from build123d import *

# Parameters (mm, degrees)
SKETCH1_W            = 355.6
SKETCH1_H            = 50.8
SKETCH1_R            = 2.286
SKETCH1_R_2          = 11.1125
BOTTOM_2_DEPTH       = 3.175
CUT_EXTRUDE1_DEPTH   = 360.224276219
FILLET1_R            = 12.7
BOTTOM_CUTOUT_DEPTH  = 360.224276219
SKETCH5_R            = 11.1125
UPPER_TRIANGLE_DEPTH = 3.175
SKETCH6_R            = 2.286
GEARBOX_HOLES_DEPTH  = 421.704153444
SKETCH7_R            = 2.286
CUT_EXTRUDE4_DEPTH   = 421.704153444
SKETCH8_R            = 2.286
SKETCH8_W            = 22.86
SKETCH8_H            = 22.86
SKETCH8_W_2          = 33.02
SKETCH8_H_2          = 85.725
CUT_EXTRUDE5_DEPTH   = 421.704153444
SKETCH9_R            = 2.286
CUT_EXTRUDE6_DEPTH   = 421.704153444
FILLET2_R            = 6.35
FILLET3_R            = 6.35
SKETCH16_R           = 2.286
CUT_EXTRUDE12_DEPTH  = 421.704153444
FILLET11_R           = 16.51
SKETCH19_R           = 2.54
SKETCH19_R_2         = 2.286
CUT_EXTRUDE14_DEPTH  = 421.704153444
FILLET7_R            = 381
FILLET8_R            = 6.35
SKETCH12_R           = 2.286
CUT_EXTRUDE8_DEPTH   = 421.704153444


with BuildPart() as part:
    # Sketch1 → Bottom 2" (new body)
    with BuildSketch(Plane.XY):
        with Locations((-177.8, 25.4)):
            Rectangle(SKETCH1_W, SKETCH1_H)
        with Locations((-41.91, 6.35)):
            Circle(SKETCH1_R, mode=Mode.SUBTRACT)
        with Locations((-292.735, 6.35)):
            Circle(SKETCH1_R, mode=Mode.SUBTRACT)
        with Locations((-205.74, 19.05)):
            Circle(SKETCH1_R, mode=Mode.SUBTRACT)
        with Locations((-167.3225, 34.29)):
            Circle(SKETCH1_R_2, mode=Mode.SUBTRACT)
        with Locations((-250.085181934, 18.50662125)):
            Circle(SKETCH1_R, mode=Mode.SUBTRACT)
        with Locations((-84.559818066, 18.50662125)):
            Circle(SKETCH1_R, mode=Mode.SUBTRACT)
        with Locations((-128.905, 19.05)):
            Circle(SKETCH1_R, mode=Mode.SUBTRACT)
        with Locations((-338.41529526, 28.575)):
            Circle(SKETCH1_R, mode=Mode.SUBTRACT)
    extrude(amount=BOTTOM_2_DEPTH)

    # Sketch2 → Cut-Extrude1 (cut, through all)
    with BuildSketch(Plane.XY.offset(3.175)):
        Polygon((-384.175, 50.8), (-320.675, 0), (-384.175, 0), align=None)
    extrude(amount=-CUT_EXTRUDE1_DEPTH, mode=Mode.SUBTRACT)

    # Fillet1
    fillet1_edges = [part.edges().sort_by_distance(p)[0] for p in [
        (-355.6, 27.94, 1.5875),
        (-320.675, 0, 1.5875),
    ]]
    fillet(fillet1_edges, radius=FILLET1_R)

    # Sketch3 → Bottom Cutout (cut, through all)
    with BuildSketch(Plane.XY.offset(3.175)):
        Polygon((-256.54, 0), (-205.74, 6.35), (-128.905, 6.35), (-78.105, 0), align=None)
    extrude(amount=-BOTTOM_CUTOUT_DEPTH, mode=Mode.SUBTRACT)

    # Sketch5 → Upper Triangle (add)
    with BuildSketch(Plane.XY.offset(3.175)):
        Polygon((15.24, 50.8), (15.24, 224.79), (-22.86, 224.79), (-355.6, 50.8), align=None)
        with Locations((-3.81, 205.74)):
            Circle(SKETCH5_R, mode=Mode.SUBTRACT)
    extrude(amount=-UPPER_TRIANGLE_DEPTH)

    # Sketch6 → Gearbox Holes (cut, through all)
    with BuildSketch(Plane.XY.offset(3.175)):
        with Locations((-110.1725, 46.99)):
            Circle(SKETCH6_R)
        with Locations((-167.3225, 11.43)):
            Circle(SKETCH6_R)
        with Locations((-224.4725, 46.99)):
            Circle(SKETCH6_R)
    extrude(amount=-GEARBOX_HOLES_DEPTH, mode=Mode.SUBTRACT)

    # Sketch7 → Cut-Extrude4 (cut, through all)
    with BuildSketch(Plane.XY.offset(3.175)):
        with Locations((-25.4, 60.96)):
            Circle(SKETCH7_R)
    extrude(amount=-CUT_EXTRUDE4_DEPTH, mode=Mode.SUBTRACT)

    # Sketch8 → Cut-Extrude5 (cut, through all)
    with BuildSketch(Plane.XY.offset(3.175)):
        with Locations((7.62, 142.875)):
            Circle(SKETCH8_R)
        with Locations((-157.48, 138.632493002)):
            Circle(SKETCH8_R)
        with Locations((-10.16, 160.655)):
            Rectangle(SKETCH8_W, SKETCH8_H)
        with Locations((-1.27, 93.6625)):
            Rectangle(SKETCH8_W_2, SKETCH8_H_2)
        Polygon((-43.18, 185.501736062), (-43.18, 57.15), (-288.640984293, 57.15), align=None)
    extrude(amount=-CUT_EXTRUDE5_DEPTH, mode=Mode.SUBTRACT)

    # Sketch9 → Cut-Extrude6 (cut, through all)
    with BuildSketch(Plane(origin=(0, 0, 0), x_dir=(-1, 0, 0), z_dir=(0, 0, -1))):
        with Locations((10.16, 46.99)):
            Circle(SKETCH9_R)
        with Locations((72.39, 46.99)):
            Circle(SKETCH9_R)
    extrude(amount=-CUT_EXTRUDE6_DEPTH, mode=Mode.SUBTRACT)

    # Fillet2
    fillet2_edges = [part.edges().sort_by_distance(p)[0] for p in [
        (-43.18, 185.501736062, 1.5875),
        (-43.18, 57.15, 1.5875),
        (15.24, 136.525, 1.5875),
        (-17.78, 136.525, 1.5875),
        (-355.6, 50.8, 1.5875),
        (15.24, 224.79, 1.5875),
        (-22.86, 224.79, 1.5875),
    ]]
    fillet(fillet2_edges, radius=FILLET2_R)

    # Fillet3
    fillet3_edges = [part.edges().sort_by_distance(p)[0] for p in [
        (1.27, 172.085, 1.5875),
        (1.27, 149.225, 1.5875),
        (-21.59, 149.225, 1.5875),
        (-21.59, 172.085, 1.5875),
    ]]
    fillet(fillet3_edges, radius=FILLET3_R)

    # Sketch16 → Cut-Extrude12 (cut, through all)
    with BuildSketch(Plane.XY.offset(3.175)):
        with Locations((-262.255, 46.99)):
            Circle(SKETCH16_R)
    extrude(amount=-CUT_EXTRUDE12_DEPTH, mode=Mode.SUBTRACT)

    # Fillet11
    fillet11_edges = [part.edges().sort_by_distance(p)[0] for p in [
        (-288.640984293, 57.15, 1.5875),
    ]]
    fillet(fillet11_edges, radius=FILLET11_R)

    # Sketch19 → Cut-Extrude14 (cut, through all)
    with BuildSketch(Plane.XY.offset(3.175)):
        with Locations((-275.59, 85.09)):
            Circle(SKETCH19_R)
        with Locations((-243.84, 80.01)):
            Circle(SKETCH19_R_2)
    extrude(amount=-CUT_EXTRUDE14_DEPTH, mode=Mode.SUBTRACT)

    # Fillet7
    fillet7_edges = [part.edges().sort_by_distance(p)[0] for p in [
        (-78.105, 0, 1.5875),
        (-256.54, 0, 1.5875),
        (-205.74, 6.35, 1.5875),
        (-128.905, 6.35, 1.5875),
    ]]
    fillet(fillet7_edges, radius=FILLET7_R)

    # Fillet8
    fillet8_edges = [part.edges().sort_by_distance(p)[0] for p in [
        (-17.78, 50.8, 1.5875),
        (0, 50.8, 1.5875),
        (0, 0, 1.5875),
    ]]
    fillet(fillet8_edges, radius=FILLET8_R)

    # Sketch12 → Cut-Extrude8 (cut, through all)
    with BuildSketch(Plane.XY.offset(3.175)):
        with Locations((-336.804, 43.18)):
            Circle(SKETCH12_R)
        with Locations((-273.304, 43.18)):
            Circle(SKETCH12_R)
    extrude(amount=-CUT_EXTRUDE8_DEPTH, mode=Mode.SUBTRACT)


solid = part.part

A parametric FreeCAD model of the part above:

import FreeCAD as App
import Part
import Sketcher
from FreeCAD import Vector
Q = App.Units.Quantity


def edges_at(feature, points):
    """Names of the edges that pass closest to the given points."""
    edges = feature.Shape.Edges
    near = lambda p: min(range(len(edges)), key=lambda i: edges[i].distToShape(Part.Vertex(*p))[0])
    return sorted({f"Edge{near(p) + 1}" for p in points})

doc = App.newDocument("Part")
body = doc.addObject("PartDesign::Body", "Body")

# Sketch on XY plane
sketch1 = body.newObject("Sketcher::SketchObject", "Sketch")
sketch1.AttachmentSupport = (doc.getObject("XY_Plane"), [""])
sketch1.MapMode = "FlatFace"
sketch1.addGeometry([
    Part.LineSegment(Vector(-355.6, 50.8, 0), Vector(-355.6, 0, 0)),  # 0
    Part.LineSegment(Vector(-355.6, 0, 0), Vector(0, 0, 0)),  # 1
    Part.LineSegment(Vector(0, 0, 0), Vector(0, 50.8, 0)),  # 2
    Part.LineSegment(Vector(0, 50.8, 0), Vector(-355.6, 50.8, 0)),  # 3
    Part.Circle(Vector(-292.7, 6.3, 0), Vector(0, 0, 1), 2.3),  # 4
    Part.Circle(Vector(-250.1, 18.5, 0), Vector(0, 0, 1), 2.3),  # 5
    Part.Circle(Vector(-205.7, 19.1, 0), Vector(0, 0, 1), 2.3),  # 6
    Part.Circle(Vector(-41.9, 6.3, 0), Vector(0, 0, 1), 2.3),  # 7
    Part.Circle(Vector(-128.9, 19.1, 0), Vector(0, 0, 1), 2.3),  # 8
    Part.Circle(Vector(-84.6, 18.5, 0), Vector(0, 0, 1), 2.3),  # 9
    Part.Circle(Vector(-338.4, 28.6, 0), Vector(0, 0, 1), 2.3),  # 10
    Part.Circle(Vector(-167.3, 34.3, 0), Vector(0, 0, 1), 11.1),  # 11
], False)
sketch1.addConstraint([
    Sketcher.Constraint("Coincident", 0, 2, 1, 1),
    Sketcher.Constraint("Coincident", 1, 2, 2, 1),
    Sketcher.Constraint("Coincident", 2, 2, 3, 1),
    Sketcher.Constraint("Coincident", 3, 2, 0, 1),
    Sketcher.Constraint("Vertical", 0),
    Sketcher.Constraint("Horizontal", 1),
    Sketcher.Constraint("Vertical", 2),
    Sketcher.Constraint("Horizontal", 3),
    Sketcher.Constraint("Coincident", 1, 2, -1, 1),
    Sketcher.Constraint("Equal", 4, 5),
    Sketcher.Constraint("Equal", 5, 6),
    Sketcher.Constraint("Equal", 6, 7),
    Sketcher.Constraint("Equal", 7, 8),
    Sketcher.Constraint("Equal", 8, 9),
    Sketcher.Constraint("Equal", 9, 10),
    Sketcher.Constraint("Horizontal", 4, 3, 7, 3),
    Sketcher.Constraint("Horizontal", 6, 3, 8, 3),
    Sketcher.Constraint("Horizontal", 5, 3, 9, 3),
    Sketcher.Constraint("Diameter", 4, Q("0.18 in")),
    Sketcher.Constraint("DistanceX", 1, 1, 1, 2, Q("14 in")),
    Sketcher.Constraint("DistanceY", 0, 2, 0, 1, Q("2 in")),
    Sketcher.Constraint("Diameter", 11, Q("0.875 in")),
    Sketcher.Constraint("DistanceX", 6, 3, -1, 1, Q("8.1 in")),
    Sketcher.Constraint("DistanceY", 4, 3, 6, 3, Q("0.5 in")),
    Sketcher.Constraint("DistanceY", 8, 3, 11, 3, Q("0.6 in")),
    Sketcher.Constraint("DistanceY", -1, 1, 4, 3, Q("0.25 in")),
    Sketcher.Constraint("DistanceX", 7, 3, -1, 1, Q("1.65 in")),
    Sketcher.Constraint("DistanceX", 4, 3, 8, 3, Q("6.45 in")),
    Sketcher.Constraint("DistanceX", 4, 3, -1, 1, Q("11.525 in")),
    Sketcher.Constraint("DistanceY", -1, 1, 10, 3, Q("1.125 in")),
    Sketcher.Constraint("DistanceX", 11, 3, 7, 3, Q("4.9375 in")),
    Sketcher.Constraint("DistanceX", 5, 3, -1, 1, 250.085182),
    Sketcher.Constraint("DistanceY", -1, 1, 5, 3, 18.506621),
    Sketcher.Constraint("DistanceX", 9, 3, -1, 1, 84.559818),
    Sketcher.Constraint("DistanceX", 10, 3, -1, 1, 338.415295),
])
pad1 = body.newObject("PartDesign::Pad", "Pad")
pad1.Profile = sketch1
pad1.Length = Q("0.125 in")

# Sketch on XY plane
sketch2 = body.newObject("Sketcher::SketchObject", "Sketch001")
sketch2.AttachmentSupport = (doc.getObject("XY_Plane"), [""])
sketch2.MapMode = "FlatFace"
sketch2.AttachmentOffset = App.Placement(Vector(0, 0, 0.125 * 25.4), App.Rotation())
sketch2.addGeometry([
    Part.LineSegment(Vector(-321, 0, 0), Vector(-384, 51, 0)),
    Part.LineSegment(Vector(-384, 51, 0), Vector(-384, 0, 0)),
    Part.LineSegment(Vector(-384, 0, 0), Vector(-321, 0, 0)),
], False)
sketch2.addConstraint([
    Sketcher.Constraint("Coincident", 0, 2, 1, 1),
    Sketcher.Constraint("Coincident", 1, 2, 2, 1),
    Sketcher.Constraint("Coincident", 2, 2, 0, 1),
    Sketcher.Constraint("Vertical", 1),
    Sketcher.Constraint("Horizontal", 2),
    Sketcher.Constraint("PointOnObject", 1, 2, -1),
    Sketcher.Constraint("DistanceY", 1, 2, 1, 1, Q("2 in")),
    Sketcher.Constraint("DistanceX", 2, 1, 2, 2, Q("2.5 in")),
    Sketcher.Constraint("DistanceX", 0, 2, -1, 1, Q("15.125 in")),
])
pocket1 = body.newObject("PartDesign::Pocket", "Pocket")
pocket1.Profile = sketch2
pocket1.Type = "ThroughAll"
doc.recompute()

fillet = body.newObject("PartDesign::Fillet", "Fillet")
fillet.Base = (pocket1, edges_at(pocket1, [(-355.6, 27.94, 1.587), (-320.675, 0, 1.587)]))
fillet.Radius = Q("0.5 in")

# Sketch on XY plane
sketch3 = body.newObject("Sketcher::SketchObject", "Sketch002")
sketch3.AttachmentSupport = (doc.getObject("XY_Plane"), [""])
sketch3.MapMode = "FlatFace"
sketch3.AttachmentOffset = App.Placement(Vector(0, 0, 0.125 * 25.4), App.Rotation())
sketch3.addGeometry([
    Part.LineSegment(Vector(-206, 6, 0), Vector(-257, 0, 0)),
    Part.LineSegment(Vector(-257, 0, 0), Vector(-78, 0, 0)),
    Part.LineSegment(Vector(-78, 0, 0), Vector(-129, 6, 0)),
    Part.LineSegment(Vector(-129, 6, 0), Vector(-206, 6, 0)),
], False)
sketch3.addConstraint([
    Sketcher.Constraint("Coincident", 0, 2, 1, 1),
    Sketcher.Constraint("Coincident", 1, 2, 2, 1),
    Sketcher.Constraint("Coincident", 2, 2, 3, 1),
    Sketcher.Constraint("Coincident", 3, 2, 0, 1),
    Sketcher.Constraint("Horizontal", 1),
    Sketcher.Constraint("Horizontal", 3),
    Sketcher.Constraint("PointOnObject", 0, 2, -1),
    Sketcher.Constraint("Equal", 0, 2),
    Sketcher.Constraint("DistanceX", 2, 2, 1, 2, Q("2 in")),
    Sketcher.Constraint("DistanceX", 0, 2, -1, 1, Q("10.1 in")),
    Sketcher.Constraint("DistanceX", 1, 1, 1, 2, Q("7.025 in")),
    Sketcher.Constraint("DistanceY", -1, 1, 2, 2, Q("0.25 in")),
])
pocket2 = body.newObject("PartDesign::Pocket", "Pocket001")
pocket2.Profile = sketch3
pocket2.Type = "ThroughAll"

# Sketch on XY plane
sketch4 = body.newObject("Sketcher::SketchObject", "Sketch003")
sketch4.AttachmentSupport = (doc.getObject("XY_Plane"), [""])
sketch4.MapMode = "FlatFace"
sketch4.AttachmentOffset = App.Placement(Vector(0, 0, 0.125 * 25.4), App.Rotation())
sketch4.addGeometry([
    Part.LineSegment(Vector(15, 51, 0), Vector(15, 225, 0)),  # 0
    Part.LineSegment(Vector(15, 225, 0), Vector(-23, 225, 0)),  # 1
    Part.LineSegment(Vector(-23, 225, 0), Vector(-356, 51, 0)),  # 2
    Part.LineSegment(Vector(-356, 51, 0), Vector(15, 51, 0)),  # 3
    Part.Circle(Vector(-4, 206, 0), Vector(0, 0, 1), 11),  # 4
], False)
sketch4.addConstraint([
    Sketcher.Constraint("Coincident", 0, 2, 1, 1),
    Sketcher.Constraint("Coincident", 1, 2, 2, 1),
    Sketcher.Constraint("Coincident", 2, 2, 3, 1),
    Sketcher.Constraint("Coincident", 3, 2, 0, 1),
    Sketcher.Constraint("Vertical", 0),
    Sketcher.Constraint("Horizontal", 1),
    Sketcher.Constraint("Horizontal", 3),
    Sketcher.Constraint("Diameter", 4, Q("0.875 in")),
    Sketcher.Constraint("DistanceX", 1, 2, 1, 1, Q("1.5 in")),
    Sketcher.Constraint("DistanceX", 3, 1, 3, 2, Q("14.6 in")),
    Sketcher.Constraint("DistanceX", 2, 2, -1, 1, Q("14 in")),
    Sketcher.Constraint("DistanceY", -1, 1, 2, 2, Q("2 in")),
    Sketcher.Constraint("DistanceY", 0, 1, 0, 2, Q("6.85 in")),
    Sketcher.Constraint("DistanceY", -1, 1, 4, 3, Q("8.1 in")),
    Sketcher.Constraint("DistanceX", 4, 3, -1, 1, Q("0.15 in")),
])
pad2 = body.newObject("PartDesign::Pad", "Pad001")
pad2.Profile = sketch4
pad2.Length = Q("0.125 in")
pad2.Reversed = True

# Sketch on XY plane
sketch5 = body.newObject("Sketcher::SketchObject", "Sketch004")
sketch5.AttachmentSupport = (doc.getObject("XY_Plane"), [""])
sketch5.MapMode = "FlatFace"
sketch5.AttachmentOffset = App.Placement(Vector(0, 0, 0.125 * 25.4), App.Rotation())
sketch5.addGeometry([
    Part.Circle(Vector(-110.2, 47, 0), Vector(0, 0, 1), 2.3),
    Part.Circle(Vector(-167.3, 11.4, 0), Vector(0, 0, 1), 2.3),
    Part.Circle(Vector(-224.5, 47, 0), Vector(0, 0, 1), 2.3),
], False)
sketch5.addConstraint([
    Sketcher.Constraint("Equal", 0, 1),
    Sketcher.Constraint("Equal", 1, 2),
    Sketcher.Constraint("Horizontal", 0, 3, 2, 3),
    Sketcher.Constraint("Diameter", 0, Q("0.18 in")),
    Sketcher.Constraint("DistanceY", 1, 3, 0, 3, Q("1.4 in")),
    Sketcher.Constraint("DistanceX", 2, 3, 0, 3, Q("4.5 in")),
    Sketcher.Constraint("DistanceY", -1, 1, 0, 3, Q("1.85 in")),
    Sketcher.Constraint("DistanceX", 1, 3, 0, 3, Q("2.25 in")),
    Sketcher.Constraint("DistanceX", 0, 3, -1, 1, Q("4.3375 in")),
])
pocket3 = body.newObject("PartDesign::Pocket", "Pocket002")
pocket3.Profile = sketch5
pocket3.Type = "ThroughAll"

# Sketch on XY plane
sketch6 = body.newObject("Sketcher::SketchObject", "Sketch005")
sketch6.AttachmentSupport = (doc.getObject("XY_Plane"), [""])
sketch6.MapMode = "FlatFace"
sketch6.AttachmentOffset = App.Placement(Vector(0, 0, 0.125 * 25.4), App.Rotation())
sketch6.addGeometry(Part.Circle(Vector(-25.4, 61, 0), Vector(0, 0, 1), 2.3), False)
sketch6.addConstraint([
    Sketcher.Constraint("Diameter", 0, Q("0.18 in")),
    Sketcher.Constraint("DistanceX", 0, 3, -1, 1, Q("1 in")),
    Sketcher.Constraint("DistanceY", -1, 1, 0, 3, Q("2.4 in")),
])
pocket4 = body.newObject("PartDesign::Pocket", "Pocket003")
pocket4.Profile = sketch6
pocket4.Type = "ThroughAll"

# Sketch on XY plane
sketch7 = body.newObject("Sketcher::SketchObject", "Sketch006")
sketch7.AttachmentSupport = (doc.getObject("XY_Plane"), [""])
sketch7.MapMode = "FlatFace"
sketch7.AttachmentOffset = App.Placement(Vector(0, 0, 0.125 * 25.4), App.Rotation())
sketch7.addGeometry([
    Part.Circle(Vector(7.6, 142.9, 0), Vector(0, 0, 1), 2.3),  # 0
    Part.Circle(Vector(-157.5, 138.6, 0), Vector(0, 0, 1), 2.3),  # 1
    Part.LineSegment(Vector(-21.6, 172.1, 0), Vector(-21.6, 149.2, 0)),  # 2
    Part.LineSegment(Vector(-21.6, 149.2, 0), Vector(1.3, 149.2, 0)),  # 3
    Part.LineSegment(Vector(1.3, 149.2, 0), Vector(1.3, 172.1, 0)),  # 4
    Part.LineSegment(Vector(1.3, 172.1, 0), Vector(-21.6, 172.1, 0)),  # 5
    Part.LineSegment(Vector(-17.8, 136.5, 0), Vector(-17.8, 50.8, 0)),  # 6
    Part.LineSegment(Vector(-17.8, 50.8, 0), Vector(15.2, 50.8, 0)),  # 7
    Part.LineSegment(Vector(15.2, 50.8, 0), Vector(15.2, 136.5, 0)),  # 8
    Part.LineSegment(Vector(15.2, 136.5, 0), Vector(-17.8, 136.5, 0)),  # 9
    Part.LineSegment(Vector(-43.2, 57.1, 0), Vector(-43.2, 185.5, 0)),  # 10
    Part.LineSegment(Vector(-43.2, 185.5, 0), Vector(-288.6, 57.1, 0)),  # 11
    Part.LineSegment(Vector(-288.6, 57.1, 0), Vector(-43.2, 57.1, 0)),  # 12
], False)
sketch7.addConstraint([
    Sketcher.Constraint("Coincident", 2, 2, 3, 1),
    Sketcher.Constraint("Coincident", 3, 2, 4, 1),
    Sketcher.Constraint("Coincident", 4, 2, 5, 1),
    Sketcher.Constraint("Coincident", 5, 2, 2, 1),
    Sketcher.Constraint("Coincident", 6, 2, 7, 1),
    Sketcher.Constraint("Coincident", 7, 2, 8, 1),
    Sketcher.Constraint("Coincident", 8, 2, 9, 1),
    Sketcher.Constraint("Coincident", 9, 2, 6, 1),
    Sketcher.Constraint("Coincident", 10, 2, 11, 1),
    Sketcher.Constraint("Coincident", 11, 2, 12, 1),
    Sketcher.Constraint("Coincident", 12, 2, 10, 1),
    Sketcher.Constraint("Vertical", 2),
    Sketcher.Constraint("Horizontal", 3),
    Sketcher.Constraint("Vertical", 4),
    Sketcher.Constraint("Horizontal", 5),
    Sketcher.Constraint("Vertical", 6),
    Sketcher.Constraint("Horizontal", 7),
    Sketcher.Constraint("Vertical", 8),
    Sketcher.Constraint("Horizontal", 9),
    Sketcher.Constraint("Vertical", 10),
    Sketcher.Constraint("Horizontal", 12),
    Sketcher.Constraint("Equal", 0, 1),
    Sketcher.Constraint("Equal", 5, 2),
    Sketcher.Constraint("Diameter", 0, Q("0.18 in")),
    Sketcher.Constraint("DistanceX", 3, 1, 3, 2, Q("0.9 in")),
    Sketcher.Constraint("DistanceX", 7, 1, 7, 2, Q("1.3 in")),
    Sketcher.Constraint("DistanceY", -1, 1, 6, 2, Q("2 in")),
    Sketcher.Constraint("DistanceX", 6, 2, 0, 3, Q("1 in")),
    Sketcher.Constraint("DistanceX", 10, 2, 9, 2, Q("1 in")),
    Sketcher.Constraint("DistanceX", -1, 1, 0, 3, Q("0.3 in")),
    Sketcher.Constraint("DistanceX", 1, 3, -1, 1, Q("6.2 in")),
    Sketcher.Constraint("DistanceY", 8, 2, 3, 2, Q("0.5 in")),
    Sketcher.Constraint("DistanceY", 6, 2, 6, 1, Q("3.375 in")),
    Sketcher.Constraint("DistanceX", 2, 2, -1, 1, Q("0.85 in")),
    Sketcher.Constraint("DistanceY", -1, 1, 11, 2, Q("2.25 in")),
    Sketcher.Constraint("DistanceY", 0, 3, 2, 2, Q("0.25 in")),
    Sketcher.Constraint("DistanceX", 12, 1, 12, 2, 245.460984),
    Sketcher.Constraint("DistanceY", 10, 1, 10, 2, 128.351736),
    Sketcher.Constraint("DistanceY", -1, 1, 1, 3, 138.632493),
])
pocket5 = body.newObject("PartDesign::Pocket", "Pocket004")
pocket5.Profile = sketch7
pocket5.Type = "ThroughAll"

# Sketch on XY plane
sketch8 = body.newObject("Sketcher::SketchObject", "Sketch007")
sketch8.AttachmentSupport = (doc.getObject("XY_Plane"), [""])
sketch8.MapMode = "FlatFace"
sketch8.addGeometry([
    Part.Circle(Vector(-10.2, 47, 0), Vector(0, 0, 1), 2.3),
    Part.Circle(Vector(-72.4, 47, 0), Vector(0, 0, 1), 2.3),
], False)
sketch8.addConstraint([
    Sketcher.Constraint("Equal", 0, 1),
    Sketcher.Constraint("Horizontal", 0, 3, 1, 3),
    Sketcher.Constraint("Diameter", 0, Q("0.18 in")),
    Sketcher.Constraint("DistanceX", 0, 3, -1, 1, Q("0.4 in")),
    Sketcher.Constraint("DistanceY", -1, 1, 0, 3, Q("1.85 in")),
    Sketcher.Constraint("DistanceX", 1, 3, -1, 1, Q("2.85 in")),
])
pocket6 = body.newObject("PartDesign::Pocket", "Pocket005")
pocket6.Profile = sketch8
pocket6.Type = "ThroughAll"
pocket6.Reversed = True
doc.recompute()

fillet2 = body.newObject("PartDesign::Fillet", "Fillet001")
fillet2.Base = (pocket6, edges_at(pocket6, [
    (-43.18, 185.502, 1.587),
    (-43.18, 57.15, 1.587),
    (15.24, 136.525, 1.587),
    (-17.78, 136.525, 1.587),
    (-355.6, 50.8, 1.587),
    (15.24, 224.79, 1.587),
    (-22.86, 224.79, 1.587),
]))
fillet2.Radius = Q("0.25 in")
doc.recompute()

fillet3 = body.newObject("PartDesign::Fillet", "Fillet002")
fillet3.Base = (fillet2, edges_at(fillet2, [
    (1.27, 172.085, 1.587),
    (1.27, 149.225, 1.587),
    (-21.59, 149.225, 1.587),
    (-21.59, 172.085, 1.587),
]))
fillet3.Radius = Q("0.25 in")

# Sketch on XY plane
sketch9 = body.newObject("Sketcher::SketchObject", "Sketch008")
sketch9.AttachmentSupport = (doc.getObject("XY_Plane"), [""])
sketch9.MapMode = "FlatFace"
sketch9.AttachmentOffset = App.Placement(Vector(0, 0, 0.125 * 25.4), App.Rotation())
sketch9.addGeometry(Part.Circle(Vector(-262.3, 47, 0), Vector(0, 0, 1), 2.3), False)
sketch9.addConstraint([
    Sketcher.Constraint("Diameter", 0, Q("0.18 in")),
    Sketcher.Constraint("DistanceY", -1, 1, 0, 3, Q("1.85 in")),
    Sketcher.Constraint("DistanceX", 0, 3, -1, 1, Q("10.325 in")),
])
pocket7 = body.newObject("PartDesign::Pocket", "Pocket006")
pocket7.Profile = sketch9
pocket7.Type = "ThroughAll"
doc.recompute()

fillet4 = body.newObject("PartDesign::Fillet", "Fillet003")
fillet4.Base = (pocket7, edges_at(pocket7, [(-288.641, 57.15, 1.587)]))
fillet4.Radius = Q("0.65 in")

# Sketch on XY plane
sketch10 = body.newObject("Sketcher::SketchObject", "Sketch009")
sketch10.AttachmentSupport = (doc.getObject("XY_Plane"), [""])
sketch10.MapMode = "FlatFace"
sketch10.AttachmentOffset = App.Placement(Vector(0, 0, 0.125 * 25.4), App.Rotation())
sketch10.addGeometry([
    Part.Circle(Vector(-275.6, 85.1, 0), Vector(0, 0, 1), 2.5),
    Part.Circle(Vector(-243.8, 80, 0), Vector(0, 0, 1), 2.3),
], False)
sketch10.addConstraint([
    Sketcher.Constraint("Diameter", 0, Q("0.2 in")),
    Sketcher.Constraint("Diameter", 1, Q("0.18 in")),
    Sketcher.Constraint("DistanceX", 1, 3, -1, 1, Q("9.6 in")),
    Sketcher.Constraint("DistanceY", 1, 3, 0, 3, Q("0.2 in")),
    Sketcher.Constraint("DistanceX", 0, 3, -1, 1, Q("10.85 in")),
    Sketcher.Constraint("DistanceY", -1, 1, 0, 3, Q("3.35 in")),
])
pocket8 = body.newObject("PartDesign::Pocket", "Pocket007")
pocket8.Profile = sketch10
pocket8.Type = "ThroughAll"
doc.recompute()

fillet5 = body.newObject("PartDesign::Fillet", "Fillet004")
fillet5.Base = (pocket8, edges_at(pocket8, [
    (-78.105, 0, 1.587),
    (-256.54, 0, 1.587),
    (-205.74, 6.35, 1.587),
    (-128.905, 6.35, 1.587),
]))
fillet5.Radius = Q("15 in")
doc.recompute()

fillet6 = body.newObject("PartDesign::Fillet", "Fillet005")
fillet6.Base = (fillet5, edges_at(fillet5, [(-17.78, 50.8, 1.587), (0, 50.8, 1.587), (0, 0, 1.587)]))
fillet6.Radius = Q("0.25 in")

# Sketch on XY plane
sketch11 = body.newObject("Sketcher::SketchObject", "Sketch010")
sketch11.AttachmentSupport = (doc.getObject("XY_Plane"), [""])
sketch11.MapMode = "FlatFace"
sketch11.AttachmentOffset = App.Placement(Vector(0, 0, 0.125 * 25.4), App.Rotation())
sketch11.addGeometry([
    Part.Circle(Vector(-336.8, 43.2, 0), Vector(0, 0, 1), 2.3),
    Part.Circle(Vector(-273.3, 43.2, 0), Vector(0, 0, 1), 2.3),
], False)
sketch11.addConstraint([
    Sketcher.Constraint("Equal", 0, 1),
    Sketcher.Constraint("Horizontal", 0, 3, 1, 3),
    Sketcher.Constraint("Diameter", 0, Q("0.18 in")),
    Sketcher.Constraint("DistanceY", -1, 1, 0, 3, Q("1.7 in")),
    Sketcher.Constraint("DistanceX", 0, 3, 1, 3, Q("2.5 in")),
    Sketcher.Constraint("DistanceX", 0, 3, -1, 1, Q("13.26 in")),
])
pocket9 = body.newObject("PartDesign::Pocket", "Pocket008")
pocket9.Profile = sketch11
pocket9.Type = "ThroughAll"

doc.recompute()
